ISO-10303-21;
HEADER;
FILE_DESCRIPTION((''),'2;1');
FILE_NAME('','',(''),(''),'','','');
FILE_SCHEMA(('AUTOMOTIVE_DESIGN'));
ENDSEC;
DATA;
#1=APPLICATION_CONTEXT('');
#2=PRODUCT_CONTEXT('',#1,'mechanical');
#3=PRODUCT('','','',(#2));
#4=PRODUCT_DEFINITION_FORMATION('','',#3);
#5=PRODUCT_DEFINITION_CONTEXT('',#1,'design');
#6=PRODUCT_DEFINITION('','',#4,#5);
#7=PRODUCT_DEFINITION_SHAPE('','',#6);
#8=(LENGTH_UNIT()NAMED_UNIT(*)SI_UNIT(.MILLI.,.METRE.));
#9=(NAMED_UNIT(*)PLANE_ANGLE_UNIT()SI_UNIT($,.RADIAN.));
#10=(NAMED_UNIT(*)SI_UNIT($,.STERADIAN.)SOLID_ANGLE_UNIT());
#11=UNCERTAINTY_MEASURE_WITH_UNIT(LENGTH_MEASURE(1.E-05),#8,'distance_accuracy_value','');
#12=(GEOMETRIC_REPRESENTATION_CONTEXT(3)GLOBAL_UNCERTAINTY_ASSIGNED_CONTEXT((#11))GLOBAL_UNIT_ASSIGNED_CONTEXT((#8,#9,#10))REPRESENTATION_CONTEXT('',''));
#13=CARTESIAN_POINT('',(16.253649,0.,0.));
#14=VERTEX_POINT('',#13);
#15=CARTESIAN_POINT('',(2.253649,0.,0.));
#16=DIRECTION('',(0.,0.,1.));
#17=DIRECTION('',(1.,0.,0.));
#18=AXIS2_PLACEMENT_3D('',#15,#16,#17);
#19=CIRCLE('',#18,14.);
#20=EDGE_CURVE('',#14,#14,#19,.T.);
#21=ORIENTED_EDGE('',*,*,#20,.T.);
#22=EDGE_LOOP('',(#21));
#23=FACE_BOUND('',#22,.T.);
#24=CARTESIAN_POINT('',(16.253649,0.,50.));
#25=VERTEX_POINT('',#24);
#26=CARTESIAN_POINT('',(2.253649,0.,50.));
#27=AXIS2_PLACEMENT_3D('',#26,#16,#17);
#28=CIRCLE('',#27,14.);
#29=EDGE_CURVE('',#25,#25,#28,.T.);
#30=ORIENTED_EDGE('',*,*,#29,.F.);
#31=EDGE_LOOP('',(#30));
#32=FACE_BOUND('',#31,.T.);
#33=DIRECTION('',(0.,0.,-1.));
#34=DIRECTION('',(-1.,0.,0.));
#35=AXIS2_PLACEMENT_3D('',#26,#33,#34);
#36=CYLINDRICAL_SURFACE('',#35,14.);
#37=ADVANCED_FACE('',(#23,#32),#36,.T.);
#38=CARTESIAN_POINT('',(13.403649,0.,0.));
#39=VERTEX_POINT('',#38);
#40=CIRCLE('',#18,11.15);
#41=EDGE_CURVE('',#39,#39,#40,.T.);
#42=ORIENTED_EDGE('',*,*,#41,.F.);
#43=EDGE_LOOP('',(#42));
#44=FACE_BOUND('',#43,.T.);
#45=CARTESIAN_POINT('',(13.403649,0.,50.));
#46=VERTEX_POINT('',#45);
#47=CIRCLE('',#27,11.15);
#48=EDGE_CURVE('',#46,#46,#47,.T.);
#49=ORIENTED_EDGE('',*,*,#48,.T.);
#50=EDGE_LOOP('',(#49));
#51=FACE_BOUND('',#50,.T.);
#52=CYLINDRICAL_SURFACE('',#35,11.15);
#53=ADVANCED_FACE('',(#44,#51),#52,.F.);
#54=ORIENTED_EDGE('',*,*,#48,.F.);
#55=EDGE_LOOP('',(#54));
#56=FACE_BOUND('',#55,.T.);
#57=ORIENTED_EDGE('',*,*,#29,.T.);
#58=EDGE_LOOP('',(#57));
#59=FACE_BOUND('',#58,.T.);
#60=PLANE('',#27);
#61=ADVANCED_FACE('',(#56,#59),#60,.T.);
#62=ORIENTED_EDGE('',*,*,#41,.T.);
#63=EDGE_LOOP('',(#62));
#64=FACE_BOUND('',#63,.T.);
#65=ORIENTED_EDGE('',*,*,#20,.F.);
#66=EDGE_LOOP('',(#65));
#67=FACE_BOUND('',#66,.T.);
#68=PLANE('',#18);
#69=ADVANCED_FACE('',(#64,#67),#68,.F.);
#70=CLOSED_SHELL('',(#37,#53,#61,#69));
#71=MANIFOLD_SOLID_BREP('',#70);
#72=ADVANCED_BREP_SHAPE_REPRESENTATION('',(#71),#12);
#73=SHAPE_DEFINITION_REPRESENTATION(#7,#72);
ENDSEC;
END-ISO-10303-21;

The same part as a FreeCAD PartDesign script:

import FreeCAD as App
import Part
import Sketcher

V = App.Vector
Q = App.Units.Quantity

doc = App.newDocument("Part")
params = doc.addObject("Spreadsheet::Sheet", "Params")
for row, (alias, value) in enumerate([
    ("sketch1_diameter", "28 mm"),
    ("sketch1_diameter2", "22.3 mm"),
    ("pad1_length", "50 mm"),
], start=1):
    params.set(f"A{row}", alias)
    params.set(f"B{row}", "=" + value)
    params.setAlias(f"B{row}", alias)

body = doc.addObject("PartDesign::Body", "Body")

sketch1 = doc.addObject("Sketcher::SketchObject", "Sketch")
body.addObject(sketch1)
sketch1.AttachmentSupport = (doc.XY_Plane, [""])
sketch1.MapMode = "FlatFace"
sketch1.addGeometry(Part.Circle(V(2, 0, 0), V(0, 0, 1), 14), False)
sketch1.addGeometry(Part.Circle(V(2, 0, 0), V(0, 0, 1), 11), False)
sketch1.addConstraint(Sketcher.Constraint("Coincident", 1, 3, 0, 3))
sketch1.addConstraint(Sketcher.Constraint("PointOnObject", 0, 3, -1))
sketch1.addConstraint(Sketcher.Constraint("Diameter", 0, Q("28 mm")))
sketch1.addConstraint(Sketcher.Constraint("Diameter", 1, Q("22.3 mm")))
sketch1.addConstraint(Sketcher.Constraint("DistanceX", -1, 1, 0, 3, Q("2.253649 mm")))
sketch1.setExpression("Constraints[2]", "Params.sketch1_diameter")
sketch1.setExpression("Constraints[3]", "Params.sketch1_diameter2")
pad1 = doc.addObject("PartDesign::Pad", "Pad")
body.addObject(pad1)
pad1.Profile = sketch1
pad1.setExpression("Length", "Params.pad1_length")

doc.recompute()
